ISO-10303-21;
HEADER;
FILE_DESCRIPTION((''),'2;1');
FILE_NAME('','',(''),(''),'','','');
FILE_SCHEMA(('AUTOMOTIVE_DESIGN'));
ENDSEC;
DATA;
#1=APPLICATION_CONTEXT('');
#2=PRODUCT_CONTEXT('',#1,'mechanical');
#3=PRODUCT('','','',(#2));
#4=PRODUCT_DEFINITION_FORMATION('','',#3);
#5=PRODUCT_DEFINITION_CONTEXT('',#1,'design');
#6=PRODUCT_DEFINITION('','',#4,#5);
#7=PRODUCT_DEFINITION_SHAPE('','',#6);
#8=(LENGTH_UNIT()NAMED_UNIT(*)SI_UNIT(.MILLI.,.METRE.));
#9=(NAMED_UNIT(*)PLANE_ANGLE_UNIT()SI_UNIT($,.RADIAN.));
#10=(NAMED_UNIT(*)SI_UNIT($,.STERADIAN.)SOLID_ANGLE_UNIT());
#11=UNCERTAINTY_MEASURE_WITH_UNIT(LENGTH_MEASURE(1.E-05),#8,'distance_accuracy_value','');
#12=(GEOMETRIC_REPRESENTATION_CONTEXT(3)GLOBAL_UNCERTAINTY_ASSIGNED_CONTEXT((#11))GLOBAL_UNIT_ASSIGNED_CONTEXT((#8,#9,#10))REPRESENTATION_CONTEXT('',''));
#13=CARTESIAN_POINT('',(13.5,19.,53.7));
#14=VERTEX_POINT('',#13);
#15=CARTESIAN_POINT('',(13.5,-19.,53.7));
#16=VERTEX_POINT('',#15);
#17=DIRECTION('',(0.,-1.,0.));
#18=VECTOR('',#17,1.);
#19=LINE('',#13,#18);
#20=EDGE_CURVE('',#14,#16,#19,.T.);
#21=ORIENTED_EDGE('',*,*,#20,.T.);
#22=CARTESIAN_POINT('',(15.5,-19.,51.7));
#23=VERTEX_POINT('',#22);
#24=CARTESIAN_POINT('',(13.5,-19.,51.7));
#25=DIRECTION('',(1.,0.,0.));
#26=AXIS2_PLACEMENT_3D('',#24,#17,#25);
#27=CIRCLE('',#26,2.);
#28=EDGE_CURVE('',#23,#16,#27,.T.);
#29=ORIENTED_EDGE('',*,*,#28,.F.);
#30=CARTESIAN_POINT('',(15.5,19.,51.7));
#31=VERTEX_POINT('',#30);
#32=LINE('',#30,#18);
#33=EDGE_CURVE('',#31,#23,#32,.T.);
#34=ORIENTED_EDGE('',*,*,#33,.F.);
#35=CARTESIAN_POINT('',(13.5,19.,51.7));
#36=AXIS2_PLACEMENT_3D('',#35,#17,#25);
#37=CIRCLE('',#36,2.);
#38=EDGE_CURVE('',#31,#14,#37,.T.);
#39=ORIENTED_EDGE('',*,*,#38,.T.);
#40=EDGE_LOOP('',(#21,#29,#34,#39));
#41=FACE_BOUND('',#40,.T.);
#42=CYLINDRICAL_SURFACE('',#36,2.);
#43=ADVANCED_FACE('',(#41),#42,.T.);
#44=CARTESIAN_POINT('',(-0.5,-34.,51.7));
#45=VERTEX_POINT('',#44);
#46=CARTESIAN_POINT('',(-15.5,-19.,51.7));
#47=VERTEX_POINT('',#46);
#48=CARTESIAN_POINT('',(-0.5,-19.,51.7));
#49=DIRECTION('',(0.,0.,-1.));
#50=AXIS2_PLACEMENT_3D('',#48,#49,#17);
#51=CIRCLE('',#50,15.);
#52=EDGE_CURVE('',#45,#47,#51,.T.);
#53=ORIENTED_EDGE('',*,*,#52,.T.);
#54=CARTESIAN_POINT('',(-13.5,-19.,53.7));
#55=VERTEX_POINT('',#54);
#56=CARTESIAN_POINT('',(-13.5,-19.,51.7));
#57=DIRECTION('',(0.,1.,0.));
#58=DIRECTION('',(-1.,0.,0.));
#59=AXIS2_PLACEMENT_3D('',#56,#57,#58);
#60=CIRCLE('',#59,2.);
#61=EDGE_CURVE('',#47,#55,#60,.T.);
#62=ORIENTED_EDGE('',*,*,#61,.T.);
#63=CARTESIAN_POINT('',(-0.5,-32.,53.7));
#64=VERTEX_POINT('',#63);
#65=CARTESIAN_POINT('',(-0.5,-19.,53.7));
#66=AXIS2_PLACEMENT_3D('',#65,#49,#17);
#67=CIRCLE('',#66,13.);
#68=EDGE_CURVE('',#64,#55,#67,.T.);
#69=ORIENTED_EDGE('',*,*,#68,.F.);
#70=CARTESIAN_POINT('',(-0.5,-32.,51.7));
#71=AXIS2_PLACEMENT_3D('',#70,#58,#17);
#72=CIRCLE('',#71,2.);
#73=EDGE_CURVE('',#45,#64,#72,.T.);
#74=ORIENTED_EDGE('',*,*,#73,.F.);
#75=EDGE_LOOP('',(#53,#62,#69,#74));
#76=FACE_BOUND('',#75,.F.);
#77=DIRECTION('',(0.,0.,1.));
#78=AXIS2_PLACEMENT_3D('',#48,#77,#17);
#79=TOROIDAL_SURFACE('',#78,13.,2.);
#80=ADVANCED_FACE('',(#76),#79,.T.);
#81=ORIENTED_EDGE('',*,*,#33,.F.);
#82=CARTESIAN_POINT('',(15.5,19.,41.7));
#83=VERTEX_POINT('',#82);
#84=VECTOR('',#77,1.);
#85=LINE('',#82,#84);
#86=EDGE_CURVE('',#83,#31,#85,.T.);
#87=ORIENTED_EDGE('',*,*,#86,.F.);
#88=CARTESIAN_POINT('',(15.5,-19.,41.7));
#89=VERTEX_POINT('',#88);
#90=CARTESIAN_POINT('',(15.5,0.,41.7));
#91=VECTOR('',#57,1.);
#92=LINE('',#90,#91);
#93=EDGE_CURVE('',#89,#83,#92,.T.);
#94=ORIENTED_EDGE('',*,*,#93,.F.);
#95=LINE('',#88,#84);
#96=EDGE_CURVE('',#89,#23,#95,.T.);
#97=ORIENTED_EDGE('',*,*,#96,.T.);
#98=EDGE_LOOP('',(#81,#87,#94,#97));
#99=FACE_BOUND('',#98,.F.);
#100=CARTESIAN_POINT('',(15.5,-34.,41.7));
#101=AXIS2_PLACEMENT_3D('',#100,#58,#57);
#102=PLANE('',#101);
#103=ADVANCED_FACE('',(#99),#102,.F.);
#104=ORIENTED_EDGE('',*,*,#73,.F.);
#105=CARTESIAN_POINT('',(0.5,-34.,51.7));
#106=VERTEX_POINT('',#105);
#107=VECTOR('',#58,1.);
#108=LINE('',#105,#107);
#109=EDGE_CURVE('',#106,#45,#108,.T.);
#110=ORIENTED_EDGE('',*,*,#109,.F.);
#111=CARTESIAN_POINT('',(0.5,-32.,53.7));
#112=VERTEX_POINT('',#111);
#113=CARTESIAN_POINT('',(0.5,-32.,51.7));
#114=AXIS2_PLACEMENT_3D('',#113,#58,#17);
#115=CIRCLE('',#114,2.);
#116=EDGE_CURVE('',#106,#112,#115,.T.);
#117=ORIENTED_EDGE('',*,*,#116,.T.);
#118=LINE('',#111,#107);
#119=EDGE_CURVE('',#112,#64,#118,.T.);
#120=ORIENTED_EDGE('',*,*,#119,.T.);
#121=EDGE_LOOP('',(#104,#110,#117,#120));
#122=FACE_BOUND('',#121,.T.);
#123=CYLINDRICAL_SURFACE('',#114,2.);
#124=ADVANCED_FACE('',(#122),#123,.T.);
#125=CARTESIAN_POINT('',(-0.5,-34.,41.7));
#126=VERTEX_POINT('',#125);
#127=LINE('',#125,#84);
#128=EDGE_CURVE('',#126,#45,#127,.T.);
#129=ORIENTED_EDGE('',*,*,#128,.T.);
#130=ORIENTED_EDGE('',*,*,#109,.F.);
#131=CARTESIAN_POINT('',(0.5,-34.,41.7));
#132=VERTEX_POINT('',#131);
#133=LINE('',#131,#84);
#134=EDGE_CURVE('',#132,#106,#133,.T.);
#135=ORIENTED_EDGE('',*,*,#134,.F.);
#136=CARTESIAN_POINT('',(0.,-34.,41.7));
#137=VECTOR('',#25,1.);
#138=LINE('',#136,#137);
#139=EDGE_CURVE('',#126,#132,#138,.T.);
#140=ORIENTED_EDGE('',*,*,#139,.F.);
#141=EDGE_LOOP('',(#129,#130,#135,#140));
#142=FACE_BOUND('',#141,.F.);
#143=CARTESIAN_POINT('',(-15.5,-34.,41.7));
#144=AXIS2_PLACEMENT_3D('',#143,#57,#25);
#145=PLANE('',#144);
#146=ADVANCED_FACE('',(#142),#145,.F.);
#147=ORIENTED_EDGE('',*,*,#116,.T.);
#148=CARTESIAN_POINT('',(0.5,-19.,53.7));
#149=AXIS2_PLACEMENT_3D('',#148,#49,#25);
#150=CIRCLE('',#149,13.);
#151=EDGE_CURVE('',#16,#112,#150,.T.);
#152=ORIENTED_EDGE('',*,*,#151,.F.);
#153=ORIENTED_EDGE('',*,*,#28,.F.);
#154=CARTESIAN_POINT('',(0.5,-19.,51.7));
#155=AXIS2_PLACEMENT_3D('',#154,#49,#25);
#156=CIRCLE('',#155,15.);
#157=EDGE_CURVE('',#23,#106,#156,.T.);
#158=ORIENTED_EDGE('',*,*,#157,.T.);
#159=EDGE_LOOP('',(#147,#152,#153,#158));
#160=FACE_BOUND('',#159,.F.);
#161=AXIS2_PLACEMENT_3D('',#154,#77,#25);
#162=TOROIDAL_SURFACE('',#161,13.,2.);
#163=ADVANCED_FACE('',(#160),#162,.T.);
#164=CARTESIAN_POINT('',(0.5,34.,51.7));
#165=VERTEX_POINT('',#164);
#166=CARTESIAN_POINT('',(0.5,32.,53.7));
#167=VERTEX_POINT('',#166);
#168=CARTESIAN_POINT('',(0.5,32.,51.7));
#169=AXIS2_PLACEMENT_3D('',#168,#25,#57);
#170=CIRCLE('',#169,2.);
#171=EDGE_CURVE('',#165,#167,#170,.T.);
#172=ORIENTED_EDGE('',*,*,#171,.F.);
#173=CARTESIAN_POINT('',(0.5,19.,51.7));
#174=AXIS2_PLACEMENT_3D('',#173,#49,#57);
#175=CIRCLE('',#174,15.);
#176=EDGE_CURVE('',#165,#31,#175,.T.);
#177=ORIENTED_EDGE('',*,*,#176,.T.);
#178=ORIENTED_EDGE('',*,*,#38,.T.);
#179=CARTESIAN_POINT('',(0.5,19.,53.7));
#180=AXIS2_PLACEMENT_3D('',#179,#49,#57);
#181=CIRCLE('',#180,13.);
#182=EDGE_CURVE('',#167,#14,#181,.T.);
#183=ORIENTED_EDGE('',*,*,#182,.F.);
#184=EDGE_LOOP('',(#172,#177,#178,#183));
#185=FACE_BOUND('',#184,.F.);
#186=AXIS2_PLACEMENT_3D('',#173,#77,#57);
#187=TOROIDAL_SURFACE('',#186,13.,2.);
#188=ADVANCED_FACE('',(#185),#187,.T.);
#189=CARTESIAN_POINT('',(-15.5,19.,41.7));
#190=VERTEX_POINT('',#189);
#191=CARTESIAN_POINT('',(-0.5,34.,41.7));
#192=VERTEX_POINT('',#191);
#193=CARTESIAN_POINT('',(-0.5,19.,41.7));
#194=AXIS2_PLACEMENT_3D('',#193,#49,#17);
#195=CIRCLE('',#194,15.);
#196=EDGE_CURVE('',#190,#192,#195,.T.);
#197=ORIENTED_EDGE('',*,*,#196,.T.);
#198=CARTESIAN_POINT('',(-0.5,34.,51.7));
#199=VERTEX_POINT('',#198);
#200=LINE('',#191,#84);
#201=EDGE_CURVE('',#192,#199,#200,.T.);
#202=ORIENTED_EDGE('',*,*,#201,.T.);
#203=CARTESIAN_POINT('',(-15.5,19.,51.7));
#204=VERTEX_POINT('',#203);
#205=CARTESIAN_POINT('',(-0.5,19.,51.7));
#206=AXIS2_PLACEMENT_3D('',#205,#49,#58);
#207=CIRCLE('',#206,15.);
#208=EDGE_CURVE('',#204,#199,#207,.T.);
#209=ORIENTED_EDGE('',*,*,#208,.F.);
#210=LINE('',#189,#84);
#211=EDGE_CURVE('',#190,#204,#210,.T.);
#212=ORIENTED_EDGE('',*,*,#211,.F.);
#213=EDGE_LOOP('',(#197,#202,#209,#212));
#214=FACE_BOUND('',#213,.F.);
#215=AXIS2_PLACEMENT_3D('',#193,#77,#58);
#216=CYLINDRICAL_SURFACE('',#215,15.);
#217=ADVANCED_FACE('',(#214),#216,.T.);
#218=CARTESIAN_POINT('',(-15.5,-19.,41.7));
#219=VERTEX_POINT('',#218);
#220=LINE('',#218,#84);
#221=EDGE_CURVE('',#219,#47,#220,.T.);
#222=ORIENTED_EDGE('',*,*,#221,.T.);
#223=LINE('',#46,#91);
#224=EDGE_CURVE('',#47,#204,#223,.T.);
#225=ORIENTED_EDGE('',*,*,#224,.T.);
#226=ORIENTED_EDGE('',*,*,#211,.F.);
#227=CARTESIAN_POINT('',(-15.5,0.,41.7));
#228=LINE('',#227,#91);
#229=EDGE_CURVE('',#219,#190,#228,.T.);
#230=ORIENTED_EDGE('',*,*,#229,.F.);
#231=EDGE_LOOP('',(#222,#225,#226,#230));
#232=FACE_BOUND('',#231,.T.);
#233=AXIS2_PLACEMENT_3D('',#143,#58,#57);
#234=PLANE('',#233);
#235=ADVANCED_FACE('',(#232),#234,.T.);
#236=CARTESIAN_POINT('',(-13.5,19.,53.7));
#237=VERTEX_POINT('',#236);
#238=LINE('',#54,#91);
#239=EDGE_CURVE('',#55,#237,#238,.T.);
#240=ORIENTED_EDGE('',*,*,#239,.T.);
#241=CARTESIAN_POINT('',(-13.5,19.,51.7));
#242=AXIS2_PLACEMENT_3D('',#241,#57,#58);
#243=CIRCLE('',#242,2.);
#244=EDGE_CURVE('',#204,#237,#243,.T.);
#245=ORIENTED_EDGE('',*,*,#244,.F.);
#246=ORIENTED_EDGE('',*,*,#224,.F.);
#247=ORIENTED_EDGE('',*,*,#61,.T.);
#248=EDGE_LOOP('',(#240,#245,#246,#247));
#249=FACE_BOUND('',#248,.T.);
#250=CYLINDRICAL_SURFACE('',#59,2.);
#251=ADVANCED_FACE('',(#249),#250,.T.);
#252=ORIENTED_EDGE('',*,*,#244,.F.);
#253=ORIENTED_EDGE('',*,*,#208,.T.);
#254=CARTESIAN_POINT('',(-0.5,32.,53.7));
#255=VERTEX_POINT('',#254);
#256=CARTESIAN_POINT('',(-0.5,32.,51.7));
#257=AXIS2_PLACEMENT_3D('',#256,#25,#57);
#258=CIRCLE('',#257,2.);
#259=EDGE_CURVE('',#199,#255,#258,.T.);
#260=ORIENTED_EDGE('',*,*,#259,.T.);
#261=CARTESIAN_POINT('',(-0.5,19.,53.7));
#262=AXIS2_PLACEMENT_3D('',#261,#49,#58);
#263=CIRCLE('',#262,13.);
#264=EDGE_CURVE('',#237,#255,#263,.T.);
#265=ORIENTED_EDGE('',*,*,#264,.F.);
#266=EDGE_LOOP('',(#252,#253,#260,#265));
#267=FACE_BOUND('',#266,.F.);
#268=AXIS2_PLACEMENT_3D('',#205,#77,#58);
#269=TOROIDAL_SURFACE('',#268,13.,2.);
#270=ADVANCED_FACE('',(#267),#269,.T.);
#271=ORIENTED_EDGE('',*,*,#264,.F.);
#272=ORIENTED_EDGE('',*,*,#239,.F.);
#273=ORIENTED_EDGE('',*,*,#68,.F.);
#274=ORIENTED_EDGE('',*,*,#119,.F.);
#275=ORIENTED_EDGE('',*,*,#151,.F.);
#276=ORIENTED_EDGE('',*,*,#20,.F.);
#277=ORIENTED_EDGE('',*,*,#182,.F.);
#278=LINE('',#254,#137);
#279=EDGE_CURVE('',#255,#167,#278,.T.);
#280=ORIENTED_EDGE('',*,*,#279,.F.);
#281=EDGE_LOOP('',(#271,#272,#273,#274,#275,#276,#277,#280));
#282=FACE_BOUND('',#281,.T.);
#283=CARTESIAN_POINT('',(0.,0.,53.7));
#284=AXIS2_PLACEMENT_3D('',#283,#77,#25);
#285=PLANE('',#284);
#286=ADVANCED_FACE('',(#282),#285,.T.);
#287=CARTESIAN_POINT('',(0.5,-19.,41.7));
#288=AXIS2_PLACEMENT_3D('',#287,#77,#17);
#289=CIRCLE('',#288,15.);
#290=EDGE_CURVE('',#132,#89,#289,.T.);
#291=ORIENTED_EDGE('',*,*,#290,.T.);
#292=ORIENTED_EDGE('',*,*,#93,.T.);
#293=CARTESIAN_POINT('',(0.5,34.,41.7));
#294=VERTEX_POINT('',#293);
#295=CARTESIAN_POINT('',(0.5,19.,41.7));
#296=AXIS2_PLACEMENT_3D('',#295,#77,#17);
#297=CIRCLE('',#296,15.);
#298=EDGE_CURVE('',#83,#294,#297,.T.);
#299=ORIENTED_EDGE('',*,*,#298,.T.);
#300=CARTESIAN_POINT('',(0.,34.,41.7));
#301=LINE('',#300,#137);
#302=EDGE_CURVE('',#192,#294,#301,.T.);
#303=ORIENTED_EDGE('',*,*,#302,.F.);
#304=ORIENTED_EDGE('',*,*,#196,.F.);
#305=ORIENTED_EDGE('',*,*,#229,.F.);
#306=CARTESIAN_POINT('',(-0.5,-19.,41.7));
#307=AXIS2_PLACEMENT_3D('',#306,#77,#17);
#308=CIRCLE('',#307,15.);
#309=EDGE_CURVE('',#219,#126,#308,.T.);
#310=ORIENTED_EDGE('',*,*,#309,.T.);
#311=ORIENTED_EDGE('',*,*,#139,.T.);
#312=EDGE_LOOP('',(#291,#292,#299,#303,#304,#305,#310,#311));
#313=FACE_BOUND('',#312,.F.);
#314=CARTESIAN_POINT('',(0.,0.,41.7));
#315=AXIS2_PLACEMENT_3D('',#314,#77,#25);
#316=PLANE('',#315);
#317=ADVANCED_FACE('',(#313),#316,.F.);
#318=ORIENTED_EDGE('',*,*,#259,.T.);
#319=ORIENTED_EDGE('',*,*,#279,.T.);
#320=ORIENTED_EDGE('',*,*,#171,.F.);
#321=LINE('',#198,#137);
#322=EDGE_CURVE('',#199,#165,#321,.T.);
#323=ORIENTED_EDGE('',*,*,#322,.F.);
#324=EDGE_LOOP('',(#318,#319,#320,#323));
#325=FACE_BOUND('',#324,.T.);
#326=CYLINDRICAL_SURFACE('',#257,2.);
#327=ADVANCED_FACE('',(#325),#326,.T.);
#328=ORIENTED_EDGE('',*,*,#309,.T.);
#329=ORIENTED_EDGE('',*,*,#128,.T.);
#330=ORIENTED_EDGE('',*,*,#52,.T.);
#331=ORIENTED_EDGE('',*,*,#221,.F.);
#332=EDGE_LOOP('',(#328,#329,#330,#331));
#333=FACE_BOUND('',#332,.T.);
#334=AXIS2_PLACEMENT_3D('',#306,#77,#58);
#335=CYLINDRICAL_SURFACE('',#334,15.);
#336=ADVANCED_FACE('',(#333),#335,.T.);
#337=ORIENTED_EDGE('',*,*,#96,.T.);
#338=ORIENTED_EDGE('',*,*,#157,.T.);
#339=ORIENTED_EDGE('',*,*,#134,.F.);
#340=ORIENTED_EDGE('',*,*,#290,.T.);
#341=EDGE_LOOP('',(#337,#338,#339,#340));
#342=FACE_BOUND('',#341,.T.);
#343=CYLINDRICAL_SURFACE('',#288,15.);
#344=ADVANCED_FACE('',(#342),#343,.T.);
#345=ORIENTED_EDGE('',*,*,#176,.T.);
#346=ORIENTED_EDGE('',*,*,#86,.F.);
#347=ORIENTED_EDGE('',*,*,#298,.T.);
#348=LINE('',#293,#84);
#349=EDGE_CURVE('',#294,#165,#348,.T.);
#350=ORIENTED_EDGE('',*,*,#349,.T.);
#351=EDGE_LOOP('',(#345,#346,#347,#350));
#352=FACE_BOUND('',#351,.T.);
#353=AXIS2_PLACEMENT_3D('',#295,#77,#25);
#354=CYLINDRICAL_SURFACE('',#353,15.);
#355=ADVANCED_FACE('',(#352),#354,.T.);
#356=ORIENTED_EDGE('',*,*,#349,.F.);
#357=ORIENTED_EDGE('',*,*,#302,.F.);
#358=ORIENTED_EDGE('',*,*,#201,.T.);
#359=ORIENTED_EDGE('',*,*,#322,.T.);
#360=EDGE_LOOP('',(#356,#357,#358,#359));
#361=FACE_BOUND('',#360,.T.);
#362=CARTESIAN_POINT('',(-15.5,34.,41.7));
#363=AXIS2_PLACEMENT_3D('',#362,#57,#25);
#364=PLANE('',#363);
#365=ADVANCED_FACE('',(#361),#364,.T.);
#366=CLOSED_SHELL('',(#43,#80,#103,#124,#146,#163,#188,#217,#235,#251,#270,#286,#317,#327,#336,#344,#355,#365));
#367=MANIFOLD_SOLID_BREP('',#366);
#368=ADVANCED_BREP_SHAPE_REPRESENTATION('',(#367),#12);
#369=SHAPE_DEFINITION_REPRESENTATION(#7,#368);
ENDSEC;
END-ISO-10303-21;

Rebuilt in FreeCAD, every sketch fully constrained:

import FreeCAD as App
import Part
import Sketcher
from FreeCAD import Vector
Q = App.Units.Quantity


def edges_at(feature, points):
    """Names of the edges that pass closest to the given points."""
    edges = feature.Shape.Edges
    near = lambda p: min(range(len(edges)), key=lambda i: edges[i].distToShape(Part.Vertex(*p))[0])
    return sorted({f"Edge{near(p) + 1}" for p in points})

doc = App.newDocument("Part")
body = doc.addObject("PartDesign::Body", "Body")

# Sketch on XY plane
sketch1 = doc.addObject("Sketcher::SketchObject", "Sketch")
body.addObject(sketch1)
sketch1.AttachmentSupport = (doc.XY_Plane, [""])
sketch1.MapMode = "FlatFace"
sketch1.AttachmentOffset = App.Placement(Vector(0, 0, 1.7), App.Rotation())
sketch1.addGeometry([
    Part.LineSegment(Vector(-16, 34, 0), Vector(-16, -34, 0)),
    Part.LineSegment(Vector(-16, -34, 0), Vector(16, -34, 0)),
    Part.LineSegment(Vector(16, -34, 0), Vector(16, 34, 0)),
    Part.LineSegment(Vector(16, 34, 0), Vector(-16, 34, 0)),
], False)
sketch1.addConstraint([
    Sketcher.Constraint("Coincident", 0, 2, 1, 1),
    Sketcher.Constraint("Coincident", 1, 2, 2, 1),
    Sketcher.Constraint("Coincident", 2, 2, 3, 1),
    Sketcher.Constraint("Coincident", 3, 2, 0, 1),
    Sketcher.Constraint("Vertical", 0),
    Sketcher.Constraint("Horizontal", 1),
    Sketcher.Constraint("Vertical", 2),
    Sketcher.Constraint("Horizontal", 3),
    Sketcher.Constraint("Symmetric", 0, 2, 2, 2, -1, 1),
    Sketcher.Constraint("DistanceX", 1, 1, 1, 2, Q("31 mm")),
    Sketcher.Constraint("DistanceY", 0, 2, 0, 1, Q("68 mm")),
])
pad1 = doc.addObject("PartDesign::Pad", "Pad")
body.addObject(pad1)
pad1.Profile = sketch1
pad1.Length = 12
doc.recompute()

fillet = doc.addObject("PartDesign::Fillet", "Fillet")
body.addObject(fillet)
fillet.Base = (pad1, edges_at(pad1, [
    (-15.5, -34, 7.7),
    (-15.5, 34, 7.7),
    (15.5, -34, 7.7),
    (15.5, 34, 7.7),
]))
fillet.Radius = 15
doc.recompute()

fillet2 = doc.addObject("PartDesign::Fillet", "Fillet001")
body.addObject(fillet2)
fillet2.Base = (fillet, edges_at(fillet, [
    (-15.5, 0, 13.7),
    (-11.107, -29.607, 13.7),
    (-11.107, 29.607, 13.7),
    (0, -34, 13.7),
    (0, 34, 13.7),
    (11.107, -29.607, 13.7),
    (11.107, 29.607, 13.7),
    (15.5, 0, 13.7),
]))
fillet2.Radius = 2
body2 = doc.addObject("PartDesign::Body", "Body001")
doc.recompute()

body.Placement = App.Placement(Vector(0, 0, 40), App.Rotation(Vector(0, 0, 1), 0))
boolean = doc.addObject("PartDesign::Boolean", "Boolean")
body2.addObject(boolean)
boolean.Type = "Fuse"
boolean.addObjects([body])

doc.recompute()
